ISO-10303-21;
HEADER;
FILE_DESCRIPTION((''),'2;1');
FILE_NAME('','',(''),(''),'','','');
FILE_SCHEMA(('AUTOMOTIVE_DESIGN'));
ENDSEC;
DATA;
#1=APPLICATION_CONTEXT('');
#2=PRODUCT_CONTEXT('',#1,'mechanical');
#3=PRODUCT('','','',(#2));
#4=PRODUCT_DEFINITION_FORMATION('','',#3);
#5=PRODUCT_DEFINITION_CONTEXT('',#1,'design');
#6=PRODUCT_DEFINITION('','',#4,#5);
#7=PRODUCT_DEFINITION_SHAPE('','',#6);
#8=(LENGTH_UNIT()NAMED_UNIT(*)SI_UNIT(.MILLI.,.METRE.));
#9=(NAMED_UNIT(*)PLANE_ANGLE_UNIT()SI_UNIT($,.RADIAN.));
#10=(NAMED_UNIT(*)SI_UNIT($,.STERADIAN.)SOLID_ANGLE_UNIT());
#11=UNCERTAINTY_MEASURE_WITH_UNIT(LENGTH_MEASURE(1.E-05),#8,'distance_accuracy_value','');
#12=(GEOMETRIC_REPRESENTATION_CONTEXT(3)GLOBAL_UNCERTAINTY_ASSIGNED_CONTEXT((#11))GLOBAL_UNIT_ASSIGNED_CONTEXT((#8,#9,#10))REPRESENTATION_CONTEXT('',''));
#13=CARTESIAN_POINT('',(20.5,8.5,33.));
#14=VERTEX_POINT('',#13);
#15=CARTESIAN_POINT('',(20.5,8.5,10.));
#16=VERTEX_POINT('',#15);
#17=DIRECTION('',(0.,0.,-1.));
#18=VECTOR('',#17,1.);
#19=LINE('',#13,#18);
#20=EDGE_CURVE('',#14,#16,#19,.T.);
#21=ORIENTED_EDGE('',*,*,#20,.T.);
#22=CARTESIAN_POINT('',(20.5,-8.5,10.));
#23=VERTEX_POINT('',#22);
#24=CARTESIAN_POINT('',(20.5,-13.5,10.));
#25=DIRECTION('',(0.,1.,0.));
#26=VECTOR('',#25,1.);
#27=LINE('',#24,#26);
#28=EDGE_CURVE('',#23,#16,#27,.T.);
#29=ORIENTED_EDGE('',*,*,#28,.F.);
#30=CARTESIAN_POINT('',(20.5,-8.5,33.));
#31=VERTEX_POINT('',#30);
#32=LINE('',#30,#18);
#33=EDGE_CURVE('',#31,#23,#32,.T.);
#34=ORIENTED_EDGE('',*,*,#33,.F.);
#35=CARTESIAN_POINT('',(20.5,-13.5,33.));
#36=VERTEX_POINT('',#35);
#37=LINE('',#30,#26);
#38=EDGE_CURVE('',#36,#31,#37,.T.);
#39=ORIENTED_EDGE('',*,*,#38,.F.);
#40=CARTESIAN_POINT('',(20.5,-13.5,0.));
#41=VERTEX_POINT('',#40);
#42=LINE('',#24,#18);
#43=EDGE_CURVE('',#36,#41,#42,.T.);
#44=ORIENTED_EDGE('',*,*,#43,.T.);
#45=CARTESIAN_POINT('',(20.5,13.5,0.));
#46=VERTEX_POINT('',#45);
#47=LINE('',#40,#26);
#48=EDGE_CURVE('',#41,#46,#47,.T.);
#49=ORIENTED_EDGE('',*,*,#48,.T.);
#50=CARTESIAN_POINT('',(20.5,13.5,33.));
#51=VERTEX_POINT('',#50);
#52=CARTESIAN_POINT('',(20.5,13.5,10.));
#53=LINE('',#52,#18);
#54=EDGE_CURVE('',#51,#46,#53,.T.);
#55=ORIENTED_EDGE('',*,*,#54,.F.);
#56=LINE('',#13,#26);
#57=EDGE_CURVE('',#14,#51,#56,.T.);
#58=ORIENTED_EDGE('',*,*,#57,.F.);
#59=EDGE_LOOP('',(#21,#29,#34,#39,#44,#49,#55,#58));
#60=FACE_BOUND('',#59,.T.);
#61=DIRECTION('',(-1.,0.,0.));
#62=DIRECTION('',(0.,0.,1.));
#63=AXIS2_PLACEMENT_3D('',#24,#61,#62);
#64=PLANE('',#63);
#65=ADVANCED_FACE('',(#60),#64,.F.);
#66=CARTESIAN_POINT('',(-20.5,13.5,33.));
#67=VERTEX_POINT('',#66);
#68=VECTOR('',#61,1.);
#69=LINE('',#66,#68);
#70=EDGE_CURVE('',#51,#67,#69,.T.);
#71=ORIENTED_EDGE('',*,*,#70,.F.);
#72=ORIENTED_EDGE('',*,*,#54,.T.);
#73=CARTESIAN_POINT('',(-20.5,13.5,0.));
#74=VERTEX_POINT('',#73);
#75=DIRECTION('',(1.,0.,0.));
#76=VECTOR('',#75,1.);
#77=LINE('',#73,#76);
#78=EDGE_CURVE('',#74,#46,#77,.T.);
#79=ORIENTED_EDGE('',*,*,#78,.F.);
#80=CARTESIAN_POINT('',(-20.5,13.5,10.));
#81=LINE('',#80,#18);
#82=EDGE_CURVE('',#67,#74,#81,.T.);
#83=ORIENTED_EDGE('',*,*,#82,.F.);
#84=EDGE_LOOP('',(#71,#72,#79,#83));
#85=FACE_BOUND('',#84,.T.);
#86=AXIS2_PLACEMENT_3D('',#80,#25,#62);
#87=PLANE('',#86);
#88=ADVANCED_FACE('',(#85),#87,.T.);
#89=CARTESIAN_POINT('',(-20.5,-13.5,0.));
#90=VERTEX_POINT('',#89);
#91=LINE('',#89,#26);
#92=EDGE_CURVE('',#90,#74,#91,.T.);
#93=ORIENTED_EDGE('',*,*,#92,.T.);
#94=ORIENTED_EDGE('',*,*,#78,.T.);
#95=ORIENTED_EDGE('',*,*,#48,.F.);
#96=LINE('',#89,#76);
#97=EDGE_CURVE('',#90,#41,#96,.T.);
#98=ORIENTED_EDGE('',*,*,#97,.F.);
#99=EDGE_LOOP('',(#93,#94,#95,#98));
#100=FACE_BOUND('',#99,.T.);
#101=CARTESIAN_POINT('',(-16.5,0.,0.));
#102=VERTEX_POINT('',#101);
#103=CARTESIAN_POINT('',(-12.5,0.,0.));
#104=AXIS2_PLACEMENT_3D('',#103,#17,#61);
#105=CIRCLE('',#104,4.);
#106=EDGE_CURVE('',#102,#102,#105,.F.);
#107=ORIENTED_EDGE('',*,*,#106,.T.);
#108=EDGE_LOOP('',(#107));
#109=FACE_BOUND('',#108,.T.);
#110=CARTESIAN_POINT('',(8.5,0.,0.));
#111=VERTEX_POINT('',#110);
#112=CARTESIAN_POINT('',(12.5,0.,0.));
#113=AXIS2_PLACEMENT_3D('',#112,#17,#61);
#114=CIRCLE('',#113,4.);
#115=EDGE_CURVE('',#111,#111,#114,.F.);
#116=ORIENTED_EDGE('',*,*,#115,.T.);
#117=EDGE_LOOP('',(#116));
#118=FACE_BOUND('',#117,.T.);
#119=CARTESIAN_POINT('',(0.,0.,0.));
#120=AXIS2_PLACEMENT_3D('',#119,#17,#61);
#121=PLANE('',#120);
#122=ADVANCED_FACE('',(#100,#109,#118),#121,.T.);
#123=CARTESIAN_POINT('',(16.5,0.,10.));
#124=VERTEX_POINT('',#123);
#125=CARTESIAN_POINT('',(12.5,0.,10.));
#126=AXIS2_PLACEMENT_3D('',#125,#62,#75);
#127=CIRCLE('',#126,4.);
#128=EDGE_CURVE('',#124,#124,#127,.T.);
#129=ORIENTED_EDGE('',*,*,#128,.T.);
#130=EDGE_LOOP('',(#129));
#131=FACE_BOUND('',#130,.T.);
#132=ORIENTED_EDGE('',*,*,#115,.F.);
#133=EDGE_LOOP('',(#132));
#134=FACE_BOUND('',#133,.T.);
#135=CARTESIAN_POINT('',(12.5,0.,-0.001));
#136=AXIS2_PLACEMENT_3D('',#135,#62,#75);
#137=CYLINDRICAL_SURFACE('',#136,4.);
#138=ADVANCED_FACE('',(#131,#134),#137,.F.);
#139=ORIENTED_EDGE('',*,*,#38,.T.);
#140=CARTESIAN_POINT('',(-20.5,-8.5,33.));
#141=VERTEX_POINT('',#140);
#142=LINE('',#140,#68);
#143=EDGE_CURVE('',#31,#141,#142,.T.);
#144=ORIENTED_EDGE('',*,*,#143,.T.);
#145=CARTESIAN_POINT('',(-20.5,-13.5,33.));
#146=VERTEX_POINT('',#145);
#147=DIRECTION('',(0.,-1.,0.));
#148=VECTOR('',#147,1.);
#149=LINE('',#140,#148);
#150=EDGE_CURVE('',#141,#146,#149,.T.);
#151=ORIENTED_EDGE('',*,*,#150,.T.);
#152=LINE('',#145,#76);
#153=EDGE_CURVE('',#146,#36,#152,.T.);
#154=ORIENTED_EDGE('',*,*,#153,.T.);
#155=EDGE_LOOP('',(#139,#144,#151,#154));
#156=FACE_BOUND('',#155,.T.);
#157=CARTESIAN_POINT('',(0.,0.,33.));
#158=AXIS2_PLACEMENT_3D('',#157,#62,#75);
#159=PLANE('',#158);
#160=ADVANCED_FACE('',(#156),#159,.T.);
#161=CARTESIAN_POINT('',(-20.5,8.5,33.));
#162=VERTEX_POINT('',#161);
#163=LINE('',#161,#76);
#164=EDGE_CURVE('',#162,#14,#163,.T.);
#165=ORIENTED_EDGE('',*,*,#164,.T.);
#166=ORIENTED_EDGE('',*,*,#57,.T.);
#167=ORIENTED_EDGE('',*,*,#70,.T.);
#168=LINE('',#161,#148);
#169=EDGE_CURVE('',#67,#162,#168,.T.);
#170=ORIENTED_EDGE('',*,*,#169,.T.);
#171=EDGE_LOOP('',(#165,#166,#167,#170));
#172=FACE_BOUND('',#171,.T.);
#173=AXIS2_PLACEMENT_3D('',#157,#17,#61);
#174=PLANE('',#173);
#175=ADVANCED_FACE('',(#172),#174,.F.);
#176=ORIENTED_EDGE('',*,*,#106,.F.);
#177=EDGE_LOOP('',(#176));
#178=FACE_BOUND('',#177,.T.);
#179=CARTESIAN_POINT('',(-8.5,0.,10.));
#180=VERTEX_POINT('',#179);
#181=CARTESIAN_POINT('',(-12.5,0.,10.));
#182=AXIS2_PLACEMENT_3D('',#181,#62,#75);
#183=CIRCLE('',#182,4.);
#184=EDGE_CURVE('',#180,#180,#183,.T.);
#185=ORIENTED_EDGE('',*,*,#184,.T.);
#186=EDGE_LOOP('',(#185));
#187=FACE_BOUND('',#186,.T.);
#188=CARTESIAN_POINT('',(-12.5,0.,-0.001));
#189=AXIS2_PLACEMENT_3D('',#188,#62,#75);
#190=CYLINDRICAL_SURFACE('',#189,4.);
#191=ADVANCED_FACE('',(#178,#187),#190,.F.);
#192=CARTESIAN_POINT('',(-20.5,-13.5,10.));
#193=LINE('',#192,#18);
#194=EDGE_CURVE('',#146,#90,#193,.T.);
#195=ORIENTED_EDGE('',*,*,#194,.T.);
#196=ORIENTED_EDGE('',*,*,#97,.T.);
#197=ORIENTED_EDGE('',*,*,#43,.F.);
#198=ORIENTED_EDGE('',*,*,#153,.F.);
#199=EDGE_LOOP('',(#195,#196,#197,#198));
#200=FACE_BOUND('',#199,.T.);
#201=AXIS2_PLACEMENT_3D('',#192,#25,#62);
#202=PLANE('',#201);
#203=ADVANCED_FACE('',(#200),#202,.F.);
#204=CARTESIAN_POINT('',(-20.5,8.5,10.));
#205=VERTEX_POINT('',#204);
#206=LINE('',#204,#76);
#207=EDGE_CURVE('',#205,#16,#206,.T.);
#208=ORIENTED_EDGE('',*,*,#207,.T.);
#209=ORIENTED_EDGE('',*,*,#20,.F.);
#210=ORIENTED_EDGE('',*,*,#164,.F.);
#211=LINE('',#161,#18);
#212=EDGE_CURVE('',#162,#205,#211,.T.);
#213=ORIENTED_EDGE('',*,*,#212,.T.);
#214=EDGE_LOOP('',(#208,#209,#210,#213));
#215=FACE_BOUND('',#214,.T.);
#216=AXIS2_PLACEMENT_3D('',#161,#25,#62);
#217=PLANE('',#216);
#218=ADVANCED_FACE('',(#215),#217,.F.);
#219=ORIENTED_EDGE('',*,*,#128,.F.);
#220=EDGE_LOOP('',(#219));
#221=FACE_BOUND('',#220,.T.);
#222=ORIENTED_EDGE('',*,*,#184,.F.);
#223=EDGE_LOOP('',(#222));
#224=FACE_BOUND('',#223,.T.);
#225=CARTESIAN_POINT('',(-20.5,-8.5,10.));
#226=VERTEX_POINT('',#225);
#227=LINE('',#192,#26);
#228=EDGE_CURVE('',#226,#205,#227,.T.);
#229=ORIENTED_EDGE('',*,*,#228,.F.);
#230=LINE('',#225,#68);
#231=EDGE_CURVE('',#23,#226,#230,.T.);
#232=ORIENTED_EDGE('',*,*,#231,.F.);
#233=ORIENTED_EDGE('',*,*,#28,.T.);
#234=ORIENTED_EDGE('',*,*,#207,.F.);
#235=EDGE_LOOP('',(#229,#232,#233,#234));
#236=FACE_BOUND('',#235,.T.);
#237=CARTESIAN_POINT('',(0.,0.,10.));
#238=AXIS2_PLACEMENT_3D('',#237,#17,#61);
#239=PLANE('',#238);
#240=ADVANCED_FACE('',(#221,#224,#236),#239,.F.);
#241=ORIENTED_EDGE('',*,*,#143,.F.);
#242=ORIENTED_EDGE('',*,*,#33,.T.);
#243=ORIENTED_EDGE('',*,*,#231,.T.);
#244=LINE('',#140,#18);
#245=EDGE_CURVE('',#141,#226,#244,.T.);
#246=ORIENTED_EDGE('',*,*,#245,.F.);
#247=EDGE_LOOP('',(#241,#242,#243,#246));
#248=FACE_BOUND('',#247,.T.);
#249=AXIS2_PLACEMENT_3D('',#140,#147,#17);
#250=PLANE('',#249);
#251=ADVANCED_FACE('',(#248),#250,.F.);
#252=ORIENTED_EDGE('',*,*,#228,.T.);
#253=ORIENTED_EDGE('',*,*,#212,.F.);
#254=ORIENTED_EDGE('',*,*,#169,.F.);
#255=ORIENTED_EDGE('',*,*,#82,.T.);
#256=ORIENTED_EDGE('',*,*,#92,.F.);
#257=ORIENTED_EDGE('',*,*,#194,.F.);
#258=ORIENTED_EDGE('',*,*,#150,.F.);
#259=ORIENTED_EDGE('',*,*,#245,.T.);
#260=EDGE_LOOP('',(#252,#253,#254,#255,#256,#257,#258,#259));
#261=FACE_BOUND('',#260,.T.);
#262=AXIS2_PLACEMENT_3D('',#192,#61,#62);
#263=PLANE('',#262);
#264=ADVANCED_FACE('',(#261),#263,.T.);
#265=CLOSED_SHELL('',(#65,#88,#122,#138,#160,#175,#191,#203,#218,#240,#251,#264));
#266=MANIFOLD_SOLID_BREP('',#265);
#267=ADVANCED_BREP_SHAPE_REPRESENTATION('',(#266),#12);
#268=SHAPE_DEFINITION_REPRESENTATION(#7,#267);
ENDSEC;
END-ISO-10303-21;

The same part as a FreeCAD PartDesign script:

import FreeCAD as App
import Part
import Sketcher
from FreeCAD import Vector
Q = App.Units.Quantity


def add_polygon(sketch, points):
    """Adds a closed chain of lines whose ends are joined by coincident constraints."""
    first, n = sketch.GeometryCount, len(points)
    for a, b in zip(points, points[1:] + points[:1]):
        sketch.addGeometry(Part.LineSegment(App.Vector(*a, 0), App.Vector(*b, 0)), False)
    for i in range(n):
        sketch.addConstraint(Sketcher.Constraint("Coincident", first + i, 2, first + (i + 1) % n, 1))

doc = App.newDocument("Part")
body = doc.addObject("PartDesign::Body", "Body")

# Sketch on XY plane
sketch1 = body.newObject("Sketcher::SketchObject", "Sketch")
sketch1.AttachmentSupport = (doc.getObject("XY_Plane"), [""])
sketch1.MapMode = "FlatFace"
add_polygon(sketch1, [(-20, 14), (-20, -14), (20, -14), (20, 14)])  # lines 0-3
sketch1.addConstraint(Sketcher.Constraint("Vertical", 0))
sketch1.addConstraint(Sketcher.Constraint("Horizontal", 1))
sketch1.addConstraint(Sketcher.Constraint("Vertical", 2))
sketch1.addConstraint(Sketcher.Constraint("Horizontal", 3))
sketch1.addConstraint(Sketcher.Constraint("Symmetric", 0, 2, 2, 2, -1, 1))
sketch1.addConstraint(Sketcher.Constraint("DistanceX", 1, 1, 1, 2, Q("41 mm")))
sketch1.addConstraint(Sketcher.Constraint("DistanceY", 0, 2, 0, 1, Q("27 mm")))
pad1 = body.newObject("PartDesign::Pad", "Pad")
pad1.Profile = sketch1
pad1.Length = 10

# Sketch on XY plane
sketch2 = body.newObject("Sketcher::SketchObject", "Sketch001")
sketch2.AttachmentSupport = (doc.getObject("XY_Plane"), [""])
sketch2.MapMode = "FlatFace"
sketch2.AttachmentOffset = App.Placement(Vector(0, 0, 10), App.Rotation())
add_polygon(sketch2, [(-20, 14), (-20, 8), (20, 8), (20, 14)])  # lines 0-3
add_polygon(sketch2, [(-20, -8), (-20, -14), (20, -14), (20, -8)])  # lines 4-7
sketch2.addConstraint(Sketcher.Constraint("Vertical", 0))
sketch2.addConstraint(Sketcher.Constraint("Horizontal", 1))
sketch2.addConstraint(Sketcher.Constraint("Vertical", 2))
sketch2.addConstraint(Sketcher.Constraint("Horizontal", 3))
sketch2.addConstraint(Sketcher.Constraint("Vertical", 4))
sketch2.addConstraint(Sketcher.Constraint("Horizontal", 5))
sketch2.addConstraint(Sketcher.Constraint("Vertical", 6))
sketch2.addConstraint(Sketcher.Constraint("Horizontal", 7))
sketch2.addConstraint(Sketcher.Constraint("Symmetric", 2, 2, 4, 2, -1, 1))
sketch2.addConstraint(Sketcher.Constraint("Symmetric", 0, 2, 6, 2, -1, 1))
sketch2.addConstraint(Sketcher.Constraint("Vertical", 3, 2, 4, 2))
sketch2.addConstraint(Sketcher.Constraint("DistanceX", 1, 1, 1, 2, Q("41 mm")))
sketch2.addConstraint(Sketcher.Constraint("DistanceY", 0, 2, 0, 1, Q("5 mm")))
sketch2.addConstraint(Sketcher.Constraint("DistanceY", 4, 2, 0, 2, Q("22 mm")))
pad2 = body.newObject("PartDesign::Pad", "Pad001")
pad2.Profile = sketch2
pad2.Length = 23

# Sketch on XY plane
sketch3 = body.newObject("Sketcher::SketchObject", "Sketch002")
sketch3.AttachmentSupport = (doc.getObject("XY_Plane"), [""])
sketch3.MapMode = "FlatFace"
sketch3.AttachmentOffset = App.Placement(Vector(0, 0, 10), App.Rotation())
sketch3.addGeometry(Part.Circle(Vector(-12.5, 0, 0), Vector(0, 0, 1), 4), False)
sketch3.addConstraint(Sketcher.Constraint("PointOnObject", 0, 3, -1))
sketch3.addConstraint(Sketcher.Constraint("Diameter", 0, Q("8 mm")))
sketch3.addConstraint(Sketcher.Constraint("DistanceX", 0, 3, -1, 1, Q("12.5 mm")))
pocket1 = body.newObject("PartDesign::Pocket", "Pocket")
pocket1.Profile = sketch3
pocket1.Type = "UpToFirst"

# Sketch on XY plane
sketch4 = body.newObject("Sketcher::SketchObject", "Sketch003")
sketch4.AttachmentSupport = (doc.getObject("XY_Plane"), [""])
sketch4.MapMode = "FlatFace"
sketch4.AttachmentOffset = App.Placement(Vector(0, 0, 10), App.Rotation())
sketch4.addGeometry(Part.Circle(Vector(12.5, 0, 0), Vector(0, 0, 1), 4), False)
sketch4.addConstraint(Sketcher.Constraint("PointOnObject", 0, 3, -1))
sketch4.addConstraint(Sketcher.Constraint("Diameter", 0, Q("8 mm")))
sketch4.addConstraint(Sketcher.Constraint("DistanceX", -1, 1, 0, 3, Q("12.5 mm")))
pocket2 = body.newObject("PartDesign::Pocket", "Pocket001")
pocket2.Profile = sketch4
pocket2.Type = "UpToFirst"

doc.recompute()
